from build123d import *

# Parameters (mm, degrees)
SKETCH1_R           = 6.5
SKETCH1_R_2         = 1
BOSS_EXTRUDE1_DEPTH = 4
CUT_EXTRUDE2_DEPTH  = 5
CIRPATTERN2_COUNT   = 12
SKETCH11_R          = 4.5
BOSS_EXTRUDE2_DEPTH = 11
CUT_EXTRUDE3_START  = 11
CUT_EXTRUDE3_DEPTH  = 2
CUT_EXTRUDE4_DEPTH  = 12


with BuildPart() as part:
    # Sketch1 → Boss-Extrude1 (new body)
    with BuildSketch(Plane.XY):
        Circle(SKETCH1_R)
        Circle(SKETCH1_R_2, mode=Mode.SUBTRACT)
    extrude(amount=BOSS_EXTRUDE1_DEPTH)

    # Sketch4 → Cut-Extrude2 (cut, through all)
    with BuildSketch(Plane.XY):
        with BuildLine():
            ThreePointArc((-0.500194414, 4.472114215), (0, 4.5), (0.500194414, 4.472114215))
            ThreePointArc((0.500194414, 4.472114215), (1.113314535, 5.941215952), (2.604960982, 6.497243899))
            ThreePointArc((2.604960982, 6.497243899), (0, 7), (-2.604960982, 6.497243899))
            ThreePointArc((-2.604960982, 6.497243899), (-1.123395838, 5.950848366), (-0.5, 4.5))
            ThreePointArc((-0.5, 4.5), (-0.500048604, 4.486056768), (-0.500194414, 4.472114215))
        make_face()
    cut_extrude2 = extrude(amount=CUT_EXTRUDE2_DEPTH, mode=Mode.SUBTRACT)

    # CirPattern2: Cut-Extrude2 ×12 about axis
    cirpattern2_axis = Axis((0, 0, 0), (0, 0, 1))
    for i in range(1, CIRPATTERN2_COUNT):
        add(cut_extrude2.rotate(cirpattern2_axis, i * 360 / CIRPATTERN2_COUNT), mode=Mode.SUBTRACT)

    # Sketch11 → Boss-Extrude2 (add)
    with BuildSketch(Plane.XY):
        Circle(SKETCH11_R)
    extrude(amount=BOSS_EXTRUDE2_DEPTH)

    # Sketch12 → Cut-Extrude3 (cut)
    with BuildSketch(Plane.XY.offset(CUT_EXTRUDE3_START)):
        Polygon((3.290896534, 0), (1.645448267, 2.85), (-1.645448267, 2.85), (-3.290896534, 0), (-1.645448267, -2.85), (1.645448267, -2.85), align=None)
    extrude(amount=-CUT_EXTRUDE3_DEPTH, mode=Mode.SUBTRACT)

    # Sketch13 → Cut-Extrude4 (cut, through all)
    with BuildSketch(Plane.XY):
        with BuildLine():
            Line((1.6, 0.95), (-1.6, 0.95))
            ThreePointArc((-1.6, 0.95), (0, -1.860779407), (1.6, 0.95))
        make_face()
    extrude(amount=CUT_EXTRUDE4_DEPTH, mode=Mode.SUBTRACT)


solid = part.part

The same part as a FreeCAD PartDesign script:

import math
import FreeCAD as App
import Part
import Sketcher

V = App.Vector
Q = App.Units.Quantity

doc = App.newDocument("Part")
params = doc.addObject("Spreadsheet::Sheet", "Params")
for row, (alias, value) in enumerate([
    ("sketch1_diameter", "13 mm"),
    ("sketch1_diameter2", "2 mm"),
    ("pad1_length", "4 mm"),
    ("sketch2_radius", "2 mm"),
    ("sketch2_radius2", "7 mm"),
    ("sketch2_radius3", "4.5 mm"),
    ("sketch3_diameter", "9 mm"),
    ("pad2_length", "11 mm"),
    ("pocket2_length", "2 mm"),
    ("sketch5_width", "3.2 mm"),
], start=1):
    params.set(f"A{row}", alias)
    params.set(f"B{row}", "=" + value)
    params.setAlias(f"B{row}", alias)

body = doc.addObject("PartDesign::Body", "Body")

# Sketch on XY plane
sketch1 = doc.addObject("Sketcher::SketchObject", "Sketch")
body.addObject(sketch1)
sketch1.AttachmentSupport = (doc.XY_Plane, [""])
sketch1.MapMode = "FlatFace"
sketch1.addGeometry([
    Part.Circle(V(0, 0, 0), V(0, 0, 1), 6.5),
    Part.Circle(V(0, 0, 0), V(0, 0, 1), 1),
], False)
sketch1.addConstraint([
    Sketcher.Constraint("Coincident", 0, 3, -1, 1),
    Sketcher.Constraint("Coincident", 1, 3, -1, 1),
    Sketcher.Constraint("Diameter", 0, Q("13 mm")),
    Sketcher.Constraint("Diameter", 1, Q("2 mm")),
])
sketch1.setExpression("Constraints[2]", "Params.sketch1_diameter")
sketch1.setExpression("Constraints[3]", "Params.sketch1_diameter2")
pad1 = doc.addObject("PartDesign::Pad", "Pad")
body.addObject(pad1)
pad1.Profile = sketch1
pad1.setExpression("Length", "Params.pad1_length")

# Sketch on XY plane
sketch2 = doc.addObject("Sketcher::SketchObject", "Sketch001")
body.addObject(sketch2)
sketch2.AttachmentSupport = (doc.XY_Plane, [""])
sketch2.MapMode = "FlatFace"
sketch2.addGeometry([
    Part.ArcOfCircle(Part.Circle(V(0, 0, 0), V(0, 0, 1), 4.5), math.radians(83.618139), math.radians(96.381861)),  # 0
    Part.ArcOfCircle(Part.Circle(V(2.5, 4.5, 0), V(0, 0, 1), 2), math.radians(86.991707), math.radians(180.798895)),  # 1
    Part.ArcOfCircle(Part.Circle(V(0, 0, 0), V(0, 0, 1), 7), math.radians(68.15251), math.radians(111.84749)),  # 2
    Part.ArcOfCircle(Part.Circle(V(-2.5, 4.5, 0), V(0, 0, 1), 2), math.radians(0), math.radians(93.008293)),  # 3
    Part.ArcOfCircle(Part.Circle(V(-2.499993, 4.5, 0), V(0, 0, 1), 1.999993), math.radians(-0.798897), math.radians(0.000001)),  # 4
], False)
sketch2.addConstraint([
    Sketcher.Constraint("Coincident", 0, 1, 1, 2),
    Sketcher.Constraint("Coincident", 1, 1, 2, 1),
    Sketcher.Constraint("Coincident", 2, 2, 3, 2),
    Sketcher.Constraint("Tangent", 3, 1, 4, 2),
    Sketcher.Constraint("Coincident", 4, 1, 0, 2),
    Sketcher.Constraint("Coincident", 0, 3, -1, 1),
    Sketcher.Constraint("Coincident", 2, 3, -1, 1),
    Sketcher.Constraint("Equal", 1, 3),
    Sketcher.Constraint("Symmetric", 1, 3, 3, 3, -2),
    Sketcher.Constraint("Horizontal", 4, 3, 3, 1),
    Sketcher.Constraint("Radius", 1, Q("2 mm")),
    Sketcher.Constraint("Radius", 2, Q("7 mm")),
    Sketcher.Constraint("Radius", 0, Q("4.5 mm")),
    Sketcher.Constraint("DistanceX", 3, 3, 1, 3, Q("5 mm")),
    Sketcher.Constraint("DistanceY", -1, 1, 1, 3, Q("4.5 mm")),
    Sketcher.Constraint("Radius", 4, Q("1.999993 mm")),
])
sketch2.setExpression("Constraints[10]", "Params.sketch2_radius")
sketch2.setExpression("Constraints[11]", "Params.sketch2_radius2")
sketch2.setExpression("Constraints[12]", "Params.sketch2_radius3")
pocket1 = doc.addObject("PartDesign::Pocket", "Pocket")
body.addObject(pocket1)
pocket1.Profile = sketch2
pocket1.Type = "ThroughAll"
pocket1.Reversed = True
doc.recompute()

polarpattern = doc.addObject("PartDesign::PolarPattern", "PolarPattern")
body.addObject(polarpattern)
polarpattern.Originals = [pocket1]
polarpattern.Axis = (doc.Z_Axis, [""])
polarpattern.Angle = 360
polarpattern.Occurrences = 12
body.Tip = polarpattern

# Sketch on XY plane
sketch3 = doc.addObject("Sketcher::SketchObject", "Sketch002")
body.addObject(sketch3)
sketch3.AttachmentSupport = (doc.XY_Plane, [""])
sketch3.MapMode = "FlatFace"
sketch3.addGeometry(Part.Circle(V(0, 0, 0), V(0, 0, 1), 4.5), False)
sketch3.addConstraint([
    Sketcher.Constraint("Coincident", 0, 3, -1, 1),
    Sketcher.Constraint("Diameter", 0, Q("9 mm")),
])
sketch3.setExpression("Constraints[1]", "Params.sketch3_diameter")
pad2 = doc.addObject("PartDesign::Pad", "Pad001")
body.addObject(pad2)
pad2.Profile = sketch3
pad2.setExpression("Length", "Params.pad2_length")

# Sketch on XY plane
sketch4 = doc.addObject("Sketcher::SketchObject", "Sketch003")
body.addObject(sketch4)
sketch4.AttachmentSupport = (doc.XY_Plane, [""])
sketch4.MapMode = "FlatFace"
sketch4.AttachmentOffset = App.Placement(V(0, 0, 11), App.Rotation())
sketch4.addGeometry([
    Part.LineSegment(V(3.290897, 0, 0), V(1.645448, 2.85, 0)),  # 0
    Part.LineSegment(V(1.645448, 2.85, 0), V(-1.645448, 2.85, 0)),  # 1
    Part.LineSegment(V(-1.645448, 2.85, 0), V(-3.290897, 0, 0)),  # 2
    Part.LineSegment(V(-3.290897, 0, 0), V(-1.645448, -2.85, 0)),  # 3
    Part.LineSegment(V(-1.645448, -2.85, 0), V(1.645448, -2.85, 0)),  # 4
    Part.LineSegment(V(1.645448, -2.85, 0), V(3.290897, 0, 0)),  # 5
], False)
sketch4.addConstraint([
    Sketcher.Constraint("Coincident", 0, 2, 1, 1),
    Sketcher.Constraint("Coincident", 1, 2, 2, 1),
    Sketcher.Constraint("Coincident", 2, 2, 3, 1),
    Sketcher.Constraint("Coincident", 3, 2, 4, 1),
    Sketcher.Constraint("Coincident", 4, 2, 5, 1),
    Sketcher.Constraint("Coincident", 5, 2, 0, 1),
    Sketcher.Constraint("Horizontal", 1),
    Sketcher.Constraint("Horizontal", 4),
    Sketcher.Constraint("Symmetric", 0, 2, 3, 2, -1, 1),
    Sketcher.Constraint("Symmetric", 2, 2, 5, 2, -1, 1),
    Sketcher.Constraint("PointOnObject", 2, 2, -1),
    Sketcher.Constraint("Parallel", 2, 5),
    Sketcher.Constraint("Vertical", 1, 2, 3, 2),
    Sketcher.Constraint("Angle", 0, Q("120 deg")),
    Sketcher.Constraint("DistanceY", 3, 2, 1, 2, Q("5.7 mm")),
    Sketcher.Constraint("DistanceX", 1, 2, 1, 1, Q("3.290897 mm")),
])
pocket2 = doc.addObject("PartDesign::Pocket", "Pocket001")
body.addObject(pocket2)
pocket2.Profile = sketch4
pocket2.setExpression("Length", "Params.pocket2_length")

# Sketch on XY plane
sketch5 = doc.addObject("Sketcher::SketchObject", "Sketch004")
body.addObject(sketch5)
sketch5.AttachmentSupport = (doc.XY_Plane, [""])
sketch5.MapMode = "FlatFace"
sketch5.addGeometry([
    Part.LineSegment(V(1.6, 0.95, 0), V(-1.6, 0.95, 0)),
    Part.ArcOfCircle(Part.Circle(V(0, 0, 0), V(0, 0, 1), 1.860779), math.radians(149.300277), math.radians(390.699723)),
], False)
sketch5.addConstraint([
    Sketcher.Constraint("Coincident", 0, 1, 1, 2),
    Sketcher.Constraint("Coincident", 1, 1, 0, 2),
    Sketcher.Constraint("Horizontal", 0),
    Sketcher.Constraint("Coincident", 1, 3, -1, 1),
    Sketcher.Constraint("DistanceX", 0, 2, 0, 1, Q("3.2 mm")),
    Sketcher.Constraint("DistanceY", -1, 1, 0, 1, Q("0.95 mm")),
])
sketch5.setExpression("Constraints[4]", "Params.sketch5_width")
pocket3 = doc.addObject("PartDesign::Pocket", "Pocket002")
body.addObject(pocket3)
pocket3.Profile = sketch5
pocket3.Type = "ThroughAll"
pocket3.Reversed = True

doc.recompute()
